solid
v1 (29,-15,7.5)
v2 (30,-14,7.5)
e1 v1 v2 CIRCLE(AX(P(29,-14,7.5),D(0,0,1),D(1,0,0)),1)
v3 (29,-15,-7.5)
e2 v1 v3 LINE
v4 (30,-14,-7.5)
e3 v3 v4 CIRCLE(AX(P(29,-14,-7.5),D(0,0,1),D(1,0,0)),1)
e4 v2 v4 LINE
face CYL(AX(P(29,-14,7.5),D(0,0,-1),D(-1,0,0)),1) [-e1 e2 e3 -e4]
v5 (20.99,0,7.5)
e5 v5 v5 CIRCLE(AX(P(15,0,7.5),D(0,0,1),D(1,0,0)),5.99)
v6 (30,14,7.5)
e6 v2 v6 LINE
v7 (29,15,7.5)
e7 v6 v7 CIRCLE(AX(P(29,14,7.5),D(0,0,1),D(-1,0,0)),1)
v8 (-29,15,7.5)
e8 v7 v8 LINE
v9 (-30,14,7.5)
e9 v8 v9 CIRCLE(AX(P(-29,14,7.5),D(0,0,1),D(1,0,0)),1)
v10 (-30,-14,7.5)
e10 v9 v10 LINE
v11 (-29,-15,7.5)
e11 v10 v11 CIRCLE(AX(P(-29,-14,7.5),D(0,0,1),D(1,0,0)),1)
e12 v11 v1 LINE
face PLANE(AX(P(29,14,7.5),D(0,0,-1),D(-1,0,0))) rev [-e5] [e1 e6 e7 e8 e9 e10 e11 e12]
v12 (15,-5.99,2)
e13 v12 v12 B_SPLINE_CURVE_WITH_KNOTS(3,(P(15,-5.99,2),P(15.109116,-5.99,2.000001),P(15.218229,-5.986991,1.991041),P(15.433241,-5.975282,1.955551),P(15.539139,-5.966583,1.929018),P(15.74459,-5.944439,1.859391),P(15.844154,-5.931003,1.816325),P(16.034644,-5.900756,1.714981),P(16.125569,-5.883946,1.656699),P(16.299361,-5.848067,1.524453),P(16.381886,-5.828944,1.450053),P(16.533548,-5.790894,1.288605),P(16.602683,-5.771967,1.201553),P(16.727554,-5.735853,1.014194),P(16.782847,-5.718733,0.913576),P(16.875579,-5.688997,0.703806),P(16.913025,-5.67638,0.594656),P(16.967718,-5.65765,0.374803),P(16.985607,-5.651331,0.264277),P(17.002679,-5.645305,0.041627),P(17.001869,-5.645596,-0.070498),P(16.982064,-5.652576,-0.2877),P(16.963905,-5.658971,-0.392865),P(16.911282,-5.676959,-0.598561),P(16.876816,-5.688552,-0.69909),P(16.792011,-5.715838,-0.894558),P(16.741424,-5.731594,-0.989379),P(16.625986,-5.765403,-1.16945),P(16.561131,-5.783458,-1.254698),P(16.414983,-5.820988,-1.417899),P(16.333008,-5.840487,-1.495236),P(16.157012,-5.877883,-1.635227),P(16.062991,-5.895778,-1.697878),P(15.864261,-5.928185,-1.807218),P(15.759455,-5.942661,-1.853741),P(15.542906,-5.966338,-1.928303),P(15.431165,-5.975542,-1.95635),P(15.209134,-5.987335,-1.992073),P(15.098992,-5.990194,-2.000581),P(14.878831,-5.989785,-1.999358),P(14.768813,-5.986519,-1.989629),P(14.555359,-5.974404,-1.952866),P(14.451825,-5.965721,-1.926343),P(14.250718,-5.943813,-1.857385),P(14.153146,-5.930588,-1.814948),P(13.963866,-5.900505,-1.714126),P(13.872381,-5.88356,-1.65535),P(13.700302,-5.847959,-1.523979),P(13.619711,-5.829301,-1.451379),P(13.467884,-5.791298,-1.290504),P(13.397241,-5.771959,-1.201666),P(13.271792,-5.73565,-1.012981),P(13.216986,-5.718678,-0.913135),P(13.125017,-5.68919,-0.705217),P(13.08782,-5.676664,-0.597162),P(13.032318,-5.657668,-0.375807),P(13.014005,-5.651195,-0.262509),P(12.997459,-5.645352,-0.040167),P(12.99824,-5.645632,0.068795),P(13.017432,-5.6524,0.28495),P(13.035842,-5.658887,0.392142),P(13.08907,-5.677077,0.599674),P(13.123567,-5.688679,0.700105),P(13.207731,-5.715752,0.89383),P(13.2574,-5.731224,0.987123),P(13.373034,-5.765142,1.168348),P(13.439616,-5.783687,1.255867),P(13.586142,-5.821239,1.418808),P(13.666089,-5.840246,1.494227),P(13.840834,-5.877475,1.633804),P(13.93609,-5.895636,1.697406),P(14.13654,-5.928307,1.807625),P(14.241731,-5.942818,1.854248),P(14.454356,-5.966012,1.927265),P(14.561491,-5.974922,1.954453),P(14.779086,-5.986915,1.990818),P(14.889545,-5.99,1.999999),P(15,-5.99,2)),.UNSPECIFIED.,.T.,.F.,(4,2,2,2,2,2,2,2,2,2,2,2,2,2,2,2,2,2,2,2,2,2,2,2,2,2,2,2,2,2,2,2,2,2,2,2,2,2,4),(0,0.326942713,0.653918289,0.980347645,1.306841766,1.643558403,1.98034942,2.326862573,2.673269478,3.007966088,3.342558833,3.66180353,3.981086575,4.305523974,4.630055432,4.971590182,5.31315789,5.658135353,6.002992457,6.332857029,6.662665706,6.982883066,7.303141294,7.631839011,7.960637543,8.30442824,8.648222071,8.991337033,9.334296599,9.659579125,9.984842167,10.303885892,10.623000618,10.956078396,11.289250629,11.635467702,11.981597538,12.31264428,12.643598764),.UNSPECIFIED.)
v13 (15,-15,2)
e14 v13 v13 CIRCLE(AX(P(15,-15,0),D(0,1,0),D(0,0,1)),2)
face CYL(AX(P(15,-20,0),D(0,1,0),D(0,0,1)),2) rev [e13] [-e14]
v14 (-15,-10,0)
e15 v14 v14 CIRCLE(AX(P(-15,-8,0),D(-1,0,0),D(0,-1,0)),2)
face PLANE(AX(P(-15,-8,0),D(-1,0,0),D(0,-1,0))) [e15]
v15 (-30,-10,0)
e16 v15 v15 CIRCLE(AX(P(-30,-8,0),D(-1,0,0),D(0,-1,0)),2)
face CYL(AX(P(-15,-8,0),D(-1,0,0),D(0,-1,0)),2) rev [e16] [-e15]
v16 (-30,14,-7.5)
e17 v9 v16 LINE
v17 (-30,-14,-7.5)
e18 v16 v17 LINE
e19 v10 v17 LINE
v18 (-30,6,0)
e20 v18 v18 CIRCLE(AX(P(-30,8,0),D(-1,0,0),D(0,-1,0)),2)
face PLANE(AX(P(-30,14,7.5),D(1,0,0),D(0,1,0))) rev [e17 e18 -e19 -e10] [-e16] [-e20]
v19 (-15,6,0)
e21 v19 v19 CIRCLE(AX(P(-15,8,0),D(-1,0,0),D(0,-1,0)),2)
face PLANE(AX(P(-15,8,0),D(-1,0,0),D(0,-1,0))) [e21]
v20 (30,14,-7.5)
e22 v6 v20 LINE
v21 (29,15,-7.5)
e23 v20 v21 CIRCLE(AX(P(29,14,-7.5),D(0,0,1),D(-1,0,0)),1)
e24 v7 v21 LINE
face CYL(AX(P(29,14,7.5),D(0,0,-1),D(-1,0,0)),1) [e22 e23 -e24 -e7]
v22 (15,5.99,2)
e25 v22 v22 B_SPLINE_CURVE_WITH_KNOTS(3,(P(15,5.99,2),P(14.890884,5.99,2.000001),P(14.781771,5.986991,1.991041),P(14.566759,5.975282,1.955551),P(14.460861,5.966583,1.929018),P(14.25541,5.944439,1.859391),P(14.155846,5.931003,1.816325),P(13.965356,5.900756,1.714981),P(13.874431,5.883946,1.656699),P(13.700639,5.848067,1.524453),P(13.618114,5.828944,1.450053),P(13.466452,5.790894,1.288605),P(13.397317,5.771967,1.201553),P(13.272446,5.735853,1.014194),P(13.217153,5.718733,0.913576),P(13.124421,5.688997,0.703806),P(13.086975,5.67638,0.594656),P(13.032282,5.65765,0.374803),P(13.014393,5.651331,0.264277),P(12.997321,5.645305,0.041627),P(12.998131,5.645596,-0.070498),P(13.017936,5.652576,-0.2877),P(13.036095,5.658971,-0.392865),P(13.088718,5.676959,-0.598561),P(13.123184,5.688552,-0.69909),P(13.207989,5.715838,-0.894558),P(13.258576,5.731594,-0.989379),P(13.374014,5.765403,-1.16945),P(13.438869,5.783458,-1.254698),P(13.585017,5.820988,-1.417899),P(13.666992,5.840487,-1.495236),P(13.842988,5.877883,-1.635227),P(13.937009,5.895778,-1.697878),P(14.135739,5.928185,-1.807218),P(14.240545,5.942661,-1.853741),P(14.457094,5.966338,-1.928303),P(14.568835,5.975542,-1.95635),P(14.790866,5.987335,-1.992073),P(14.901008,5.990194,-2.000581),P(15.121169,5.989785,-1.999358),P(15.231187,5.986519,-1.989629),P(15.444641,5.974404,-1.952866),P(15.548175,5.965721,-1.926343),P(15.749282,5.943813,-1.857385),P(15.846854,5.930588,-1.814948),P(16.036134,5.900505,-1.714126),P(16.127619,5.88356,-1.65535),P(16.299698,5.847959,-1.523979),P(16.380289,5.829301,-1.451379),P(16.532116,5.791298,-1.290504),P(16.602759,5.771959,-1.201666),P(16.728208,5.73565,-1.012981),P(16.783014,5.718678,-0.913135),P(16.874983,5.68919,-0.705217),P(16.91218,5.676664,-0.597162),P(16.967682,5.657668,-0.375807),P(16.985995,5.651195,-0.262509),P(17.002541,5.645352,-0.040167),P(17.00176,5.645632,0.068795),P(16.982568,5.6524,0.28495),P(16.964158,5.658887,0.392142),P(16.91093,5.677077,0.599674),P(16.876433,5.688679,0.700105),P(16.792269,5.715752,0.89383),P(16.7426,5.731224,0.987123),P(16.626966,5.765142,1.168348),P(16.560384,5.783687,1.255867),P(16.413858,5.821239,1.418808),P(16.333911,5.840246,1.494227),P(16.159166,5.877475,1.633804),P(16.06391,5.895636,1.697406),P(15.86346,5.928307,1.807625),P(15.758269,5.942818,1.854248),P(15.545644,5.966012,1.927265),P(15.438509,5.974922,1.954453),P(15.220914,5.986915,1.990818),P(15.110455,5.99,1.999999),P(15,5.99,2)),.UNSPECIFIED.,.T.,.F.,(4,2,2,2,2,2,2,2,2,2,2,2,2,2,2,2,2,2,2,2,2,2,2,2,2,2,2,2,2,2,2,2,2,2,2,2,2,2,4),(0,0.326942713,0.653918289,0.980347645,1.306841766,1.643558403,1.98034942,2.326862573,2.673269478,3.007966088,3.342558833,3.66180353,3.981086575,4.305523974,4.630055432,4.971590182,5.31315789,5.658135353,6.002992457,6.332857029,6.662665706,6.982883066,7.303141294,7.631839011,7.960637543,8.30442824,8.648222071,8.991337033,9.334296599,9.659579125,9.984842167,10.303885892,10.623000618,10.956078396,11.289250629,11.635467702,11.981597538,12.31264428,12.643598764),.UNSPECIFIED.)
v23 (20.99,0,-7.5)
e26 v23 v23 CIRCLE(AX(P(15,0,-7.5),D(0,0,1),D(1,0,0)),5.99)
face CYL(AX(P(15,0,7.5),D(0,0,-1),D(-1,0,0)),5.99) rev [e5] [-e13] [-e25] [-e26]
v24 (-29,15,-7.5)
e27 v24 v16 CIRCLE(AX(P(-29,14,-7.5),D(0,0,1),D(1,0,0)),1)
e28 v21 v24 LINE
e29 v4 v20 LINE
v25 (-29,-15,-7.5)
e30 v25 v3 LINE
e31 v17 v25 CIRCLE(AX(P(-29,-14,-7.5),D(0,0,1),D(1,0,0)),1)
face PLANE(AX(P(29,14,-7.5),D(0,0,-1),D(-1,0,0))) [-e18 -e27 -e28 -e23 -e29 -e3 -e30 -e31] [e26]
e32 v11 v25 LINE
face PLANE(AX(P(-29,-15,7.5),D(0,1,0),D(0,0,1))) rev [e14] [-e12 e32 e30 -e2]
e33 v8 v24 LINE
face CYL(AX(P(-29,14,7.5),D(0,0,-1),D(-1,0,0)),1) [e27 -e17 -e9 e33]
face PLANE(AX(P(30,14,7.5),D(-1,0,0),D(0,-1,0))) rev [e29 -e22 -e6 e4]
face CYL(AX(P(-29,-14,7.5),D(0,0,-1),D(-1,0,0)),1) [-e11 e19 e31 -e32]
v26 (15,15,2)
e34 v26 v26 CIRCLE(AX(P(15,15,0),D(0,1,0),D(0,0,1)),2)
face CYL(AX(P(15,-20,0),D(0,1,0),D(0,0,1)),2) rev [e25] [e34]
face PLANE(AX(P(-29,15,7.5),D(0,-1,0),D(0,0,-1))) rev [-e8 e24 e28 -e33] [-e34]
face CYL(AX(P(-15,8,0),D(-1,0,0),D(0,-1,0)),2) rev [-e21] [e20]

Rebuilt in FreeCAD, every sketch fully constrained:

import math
import FreeCAD as App
import Part
import Sketcher

V = App.Vector
Q = App.Units.Quantity

doc = App.newDocument("Part")
body = doc.addObject("PartDesign::Body", "Body")

# Sketch on XY plane
sketch1 = body.newObject("Sketcher::SketchObject", "Sketch")
sketch1.AttachmentSupport = (doc.getObject("XY_Plane"), [""])
sketch1.MapMode = "FlatFace"
sketch1.addGeometry(Part.LineSegment(V(29, 15, 0), V(-29, 15, 0)), False)
sketch1.addGeometry(Part.ArcOfCircle(Part.Circle(V(-29, 14, 0), V(0, 0, 1), 1), math.radians(90), math.radians(180)), False)
sketch1.addGeometry(Part.LineSegment(V(-30, 14, 0), V(-30, -14, 0)), False)
sketch1.addGeometry(Part.ArcOfCircle(Part.Circle(V(-29, -14, 0), V(0, 0, 1), 1), math.radians(-180), math.radians(-90)), False)
sketch1.addGeometry(Part.LineSegment(V(-29, -15, 0), V(29, -15, 0)), False)
sketch1.addGeometry(Part.ArcOfCircle(Part.Circle(V(29, -14, 0), V(0, 0, 1), 1), math.radians(-90), math.radians(0)), False)
sketch1.addGeometry(Part.LineSegment(V(30, -14, 0), V(30, 14, 0)), False)
sketch1.addGeometry(Part.ArcOfCircle(Part.Circle(V(29, 14, 0), V(0, 0, 1), 1), math.radians(0), math.radians(90)), False)
sketch1.addGeometry(Part.Circle(V(15, 0, 0), V(0, 0, 1), 6), False)
sketch1.addConstraint(Sketcher.Constraint("Tangent", 0, 2, 1, 1))
sketch1.addConstraint(Sketcher.Constraint("Tangent", 1, 2, 2, 1))
sketch1.addConstraint(Sketcher.Constraint("Tangent", 2, 2, 3, 1))
sketch1.addConstraint(Sketcher.Constraint("Tangent", 3, 2, 4, 1))
sketch1.addConstraint(Sketcher.Constraint("Tangent", 4, 2, 5, 1))
sketch1.addConstraint(Sketcher.Constraint("Tangent", 5, 2, 6, 1))
sketch1.addConstraint(Sketcher.Constraint("Tangent", 6, 2, 7, 1))
sketch1.addConstraint(Sketcher.Constraint("Tangent", 7, 2, 0, 1))
sketch1.addConstraint(Sketcher.Constraint("Horizontal", 0))
sketch1.addConstraint(Sketcher.Constraint("Vertical", 2))
sketch1.addConstraint(Sketcher.Constraint("Horizontal", 4))
sketch1.addConstraint(Sketcher.Constraint("Vertical", 6))
sketch1.addConstraint(Sketcher.Constraint("Equal", 1, 3))
sketch1.addConstraint(Sketcher.Constraint("Equal", 3, 5))
sketch1.addConstraint(Sketcher.Constraint("Equal", 5, 7))
sketch1.addConstraint(Sketcher.Constraint("Symmetric", 1, 3, 5, 3, -1, 1))
sketch1.addConstraint(Sketcher.Constraint("PointOnObject", 8, 3, -1))
sketch1.addConstraint(Sketcher.Constraint("Radius", 1, Q("1 mm")))
sketch1.addConstraint(Sketcher.Constraint("Diameter", 8, Q("11.98 mm")))
sketch1.addConstraint(Sketcher.Constraint("DistanceX", 0, 2, 0, 1, Q("58 mm")))
sketch1.addConstraint(Sketcher.Constraint("DistanceY", 2, 2, 2, 1, Q("28 mm")))
sketch1.addConstraint(Sketcher.Constraint("DistanceX", -1, 1, 8, 3, Q("15 mm")))
pad1 = body.newObject("PartDesign::Pad", "Pad")
pad1.Profile = sketch1
pad1.Length = 15
pad1.Midplane = True

# Sketch on YZ plane
sketch2 = body.newObject("Sketcher::SketchObject", "Sketch001")
sketch2.AttachmentSupport = (doc.getObject("YZ_Plane"), [""])
sketch2.MapMode = "FlatFace"
sketch2.AttachmentOffset = App.Placement(V(0, 0, -30), App.Rotation())
sketch2.addGeometry(Part.Circle(V(8, 0, 0), V(0, 0, 1), 2), False)
sketch2.addGeometry(Part.Circle(V(-8, 0, 0), V(0, 0, 1), 2), False)
sketch2.addConstraint(Sketcher.Constraint("Equal", 0, 1))
sketch2.addConstraint(Sketcher.Constraint("Symmetric", 0, 3, 1, 3, -1, 1))
sketch2.addConstraint(Sketcher.Constraint("PointOnObject", 0, 3, -1))
sketch2.addConstraint(Sketcher.Constraint("Diameter", 0, Q("4 mm")))
sketch2.addConstraint(Sketcher.Constraint("DistanceX", -1, 1, 0, 3, Q("8 mm")))
pocket1 = body.newObject("PartDesign::Pocket", "Pocket")
pocket1.Profile = sketch2
pocket1.Length = 15
pocket1.Reversed = True

# Sketch on XZ plane
sketch3 = body.newObject("Sketcher::SketchObject", "Sketch002")
sketch3.AttachmentSupport = (doc.getObject("XZ_Plane"), [""])
sketch3.MapMode = "FlatFace"
sketch3.AttachmentOffset = App.Placement(V(0, 0, -15), App.Rotation())
sketch3.addGeometry(Part.Circle(V(15, 0, 0), V(0, 0, 1), 2), False)
sketch3.addConstraint(Sketcher.Constraint("PointOnObject", 0, 3, -1))
sketch3.addConstraint(Sketcher.Constraint("Diameter", 0, Q("4 mm")))
sketch3.addConstraint(Sketcher.Constraint("DistanceX", -1, 1, 0, 3, Q("15 mm")))
pocket2 = body.newObject("PartDesign::Pocket", "Pocket001")
pocket2.Profile = sketch3
pocket2.Length = 35
pocket2.Reversed = True

doc.recompute()
